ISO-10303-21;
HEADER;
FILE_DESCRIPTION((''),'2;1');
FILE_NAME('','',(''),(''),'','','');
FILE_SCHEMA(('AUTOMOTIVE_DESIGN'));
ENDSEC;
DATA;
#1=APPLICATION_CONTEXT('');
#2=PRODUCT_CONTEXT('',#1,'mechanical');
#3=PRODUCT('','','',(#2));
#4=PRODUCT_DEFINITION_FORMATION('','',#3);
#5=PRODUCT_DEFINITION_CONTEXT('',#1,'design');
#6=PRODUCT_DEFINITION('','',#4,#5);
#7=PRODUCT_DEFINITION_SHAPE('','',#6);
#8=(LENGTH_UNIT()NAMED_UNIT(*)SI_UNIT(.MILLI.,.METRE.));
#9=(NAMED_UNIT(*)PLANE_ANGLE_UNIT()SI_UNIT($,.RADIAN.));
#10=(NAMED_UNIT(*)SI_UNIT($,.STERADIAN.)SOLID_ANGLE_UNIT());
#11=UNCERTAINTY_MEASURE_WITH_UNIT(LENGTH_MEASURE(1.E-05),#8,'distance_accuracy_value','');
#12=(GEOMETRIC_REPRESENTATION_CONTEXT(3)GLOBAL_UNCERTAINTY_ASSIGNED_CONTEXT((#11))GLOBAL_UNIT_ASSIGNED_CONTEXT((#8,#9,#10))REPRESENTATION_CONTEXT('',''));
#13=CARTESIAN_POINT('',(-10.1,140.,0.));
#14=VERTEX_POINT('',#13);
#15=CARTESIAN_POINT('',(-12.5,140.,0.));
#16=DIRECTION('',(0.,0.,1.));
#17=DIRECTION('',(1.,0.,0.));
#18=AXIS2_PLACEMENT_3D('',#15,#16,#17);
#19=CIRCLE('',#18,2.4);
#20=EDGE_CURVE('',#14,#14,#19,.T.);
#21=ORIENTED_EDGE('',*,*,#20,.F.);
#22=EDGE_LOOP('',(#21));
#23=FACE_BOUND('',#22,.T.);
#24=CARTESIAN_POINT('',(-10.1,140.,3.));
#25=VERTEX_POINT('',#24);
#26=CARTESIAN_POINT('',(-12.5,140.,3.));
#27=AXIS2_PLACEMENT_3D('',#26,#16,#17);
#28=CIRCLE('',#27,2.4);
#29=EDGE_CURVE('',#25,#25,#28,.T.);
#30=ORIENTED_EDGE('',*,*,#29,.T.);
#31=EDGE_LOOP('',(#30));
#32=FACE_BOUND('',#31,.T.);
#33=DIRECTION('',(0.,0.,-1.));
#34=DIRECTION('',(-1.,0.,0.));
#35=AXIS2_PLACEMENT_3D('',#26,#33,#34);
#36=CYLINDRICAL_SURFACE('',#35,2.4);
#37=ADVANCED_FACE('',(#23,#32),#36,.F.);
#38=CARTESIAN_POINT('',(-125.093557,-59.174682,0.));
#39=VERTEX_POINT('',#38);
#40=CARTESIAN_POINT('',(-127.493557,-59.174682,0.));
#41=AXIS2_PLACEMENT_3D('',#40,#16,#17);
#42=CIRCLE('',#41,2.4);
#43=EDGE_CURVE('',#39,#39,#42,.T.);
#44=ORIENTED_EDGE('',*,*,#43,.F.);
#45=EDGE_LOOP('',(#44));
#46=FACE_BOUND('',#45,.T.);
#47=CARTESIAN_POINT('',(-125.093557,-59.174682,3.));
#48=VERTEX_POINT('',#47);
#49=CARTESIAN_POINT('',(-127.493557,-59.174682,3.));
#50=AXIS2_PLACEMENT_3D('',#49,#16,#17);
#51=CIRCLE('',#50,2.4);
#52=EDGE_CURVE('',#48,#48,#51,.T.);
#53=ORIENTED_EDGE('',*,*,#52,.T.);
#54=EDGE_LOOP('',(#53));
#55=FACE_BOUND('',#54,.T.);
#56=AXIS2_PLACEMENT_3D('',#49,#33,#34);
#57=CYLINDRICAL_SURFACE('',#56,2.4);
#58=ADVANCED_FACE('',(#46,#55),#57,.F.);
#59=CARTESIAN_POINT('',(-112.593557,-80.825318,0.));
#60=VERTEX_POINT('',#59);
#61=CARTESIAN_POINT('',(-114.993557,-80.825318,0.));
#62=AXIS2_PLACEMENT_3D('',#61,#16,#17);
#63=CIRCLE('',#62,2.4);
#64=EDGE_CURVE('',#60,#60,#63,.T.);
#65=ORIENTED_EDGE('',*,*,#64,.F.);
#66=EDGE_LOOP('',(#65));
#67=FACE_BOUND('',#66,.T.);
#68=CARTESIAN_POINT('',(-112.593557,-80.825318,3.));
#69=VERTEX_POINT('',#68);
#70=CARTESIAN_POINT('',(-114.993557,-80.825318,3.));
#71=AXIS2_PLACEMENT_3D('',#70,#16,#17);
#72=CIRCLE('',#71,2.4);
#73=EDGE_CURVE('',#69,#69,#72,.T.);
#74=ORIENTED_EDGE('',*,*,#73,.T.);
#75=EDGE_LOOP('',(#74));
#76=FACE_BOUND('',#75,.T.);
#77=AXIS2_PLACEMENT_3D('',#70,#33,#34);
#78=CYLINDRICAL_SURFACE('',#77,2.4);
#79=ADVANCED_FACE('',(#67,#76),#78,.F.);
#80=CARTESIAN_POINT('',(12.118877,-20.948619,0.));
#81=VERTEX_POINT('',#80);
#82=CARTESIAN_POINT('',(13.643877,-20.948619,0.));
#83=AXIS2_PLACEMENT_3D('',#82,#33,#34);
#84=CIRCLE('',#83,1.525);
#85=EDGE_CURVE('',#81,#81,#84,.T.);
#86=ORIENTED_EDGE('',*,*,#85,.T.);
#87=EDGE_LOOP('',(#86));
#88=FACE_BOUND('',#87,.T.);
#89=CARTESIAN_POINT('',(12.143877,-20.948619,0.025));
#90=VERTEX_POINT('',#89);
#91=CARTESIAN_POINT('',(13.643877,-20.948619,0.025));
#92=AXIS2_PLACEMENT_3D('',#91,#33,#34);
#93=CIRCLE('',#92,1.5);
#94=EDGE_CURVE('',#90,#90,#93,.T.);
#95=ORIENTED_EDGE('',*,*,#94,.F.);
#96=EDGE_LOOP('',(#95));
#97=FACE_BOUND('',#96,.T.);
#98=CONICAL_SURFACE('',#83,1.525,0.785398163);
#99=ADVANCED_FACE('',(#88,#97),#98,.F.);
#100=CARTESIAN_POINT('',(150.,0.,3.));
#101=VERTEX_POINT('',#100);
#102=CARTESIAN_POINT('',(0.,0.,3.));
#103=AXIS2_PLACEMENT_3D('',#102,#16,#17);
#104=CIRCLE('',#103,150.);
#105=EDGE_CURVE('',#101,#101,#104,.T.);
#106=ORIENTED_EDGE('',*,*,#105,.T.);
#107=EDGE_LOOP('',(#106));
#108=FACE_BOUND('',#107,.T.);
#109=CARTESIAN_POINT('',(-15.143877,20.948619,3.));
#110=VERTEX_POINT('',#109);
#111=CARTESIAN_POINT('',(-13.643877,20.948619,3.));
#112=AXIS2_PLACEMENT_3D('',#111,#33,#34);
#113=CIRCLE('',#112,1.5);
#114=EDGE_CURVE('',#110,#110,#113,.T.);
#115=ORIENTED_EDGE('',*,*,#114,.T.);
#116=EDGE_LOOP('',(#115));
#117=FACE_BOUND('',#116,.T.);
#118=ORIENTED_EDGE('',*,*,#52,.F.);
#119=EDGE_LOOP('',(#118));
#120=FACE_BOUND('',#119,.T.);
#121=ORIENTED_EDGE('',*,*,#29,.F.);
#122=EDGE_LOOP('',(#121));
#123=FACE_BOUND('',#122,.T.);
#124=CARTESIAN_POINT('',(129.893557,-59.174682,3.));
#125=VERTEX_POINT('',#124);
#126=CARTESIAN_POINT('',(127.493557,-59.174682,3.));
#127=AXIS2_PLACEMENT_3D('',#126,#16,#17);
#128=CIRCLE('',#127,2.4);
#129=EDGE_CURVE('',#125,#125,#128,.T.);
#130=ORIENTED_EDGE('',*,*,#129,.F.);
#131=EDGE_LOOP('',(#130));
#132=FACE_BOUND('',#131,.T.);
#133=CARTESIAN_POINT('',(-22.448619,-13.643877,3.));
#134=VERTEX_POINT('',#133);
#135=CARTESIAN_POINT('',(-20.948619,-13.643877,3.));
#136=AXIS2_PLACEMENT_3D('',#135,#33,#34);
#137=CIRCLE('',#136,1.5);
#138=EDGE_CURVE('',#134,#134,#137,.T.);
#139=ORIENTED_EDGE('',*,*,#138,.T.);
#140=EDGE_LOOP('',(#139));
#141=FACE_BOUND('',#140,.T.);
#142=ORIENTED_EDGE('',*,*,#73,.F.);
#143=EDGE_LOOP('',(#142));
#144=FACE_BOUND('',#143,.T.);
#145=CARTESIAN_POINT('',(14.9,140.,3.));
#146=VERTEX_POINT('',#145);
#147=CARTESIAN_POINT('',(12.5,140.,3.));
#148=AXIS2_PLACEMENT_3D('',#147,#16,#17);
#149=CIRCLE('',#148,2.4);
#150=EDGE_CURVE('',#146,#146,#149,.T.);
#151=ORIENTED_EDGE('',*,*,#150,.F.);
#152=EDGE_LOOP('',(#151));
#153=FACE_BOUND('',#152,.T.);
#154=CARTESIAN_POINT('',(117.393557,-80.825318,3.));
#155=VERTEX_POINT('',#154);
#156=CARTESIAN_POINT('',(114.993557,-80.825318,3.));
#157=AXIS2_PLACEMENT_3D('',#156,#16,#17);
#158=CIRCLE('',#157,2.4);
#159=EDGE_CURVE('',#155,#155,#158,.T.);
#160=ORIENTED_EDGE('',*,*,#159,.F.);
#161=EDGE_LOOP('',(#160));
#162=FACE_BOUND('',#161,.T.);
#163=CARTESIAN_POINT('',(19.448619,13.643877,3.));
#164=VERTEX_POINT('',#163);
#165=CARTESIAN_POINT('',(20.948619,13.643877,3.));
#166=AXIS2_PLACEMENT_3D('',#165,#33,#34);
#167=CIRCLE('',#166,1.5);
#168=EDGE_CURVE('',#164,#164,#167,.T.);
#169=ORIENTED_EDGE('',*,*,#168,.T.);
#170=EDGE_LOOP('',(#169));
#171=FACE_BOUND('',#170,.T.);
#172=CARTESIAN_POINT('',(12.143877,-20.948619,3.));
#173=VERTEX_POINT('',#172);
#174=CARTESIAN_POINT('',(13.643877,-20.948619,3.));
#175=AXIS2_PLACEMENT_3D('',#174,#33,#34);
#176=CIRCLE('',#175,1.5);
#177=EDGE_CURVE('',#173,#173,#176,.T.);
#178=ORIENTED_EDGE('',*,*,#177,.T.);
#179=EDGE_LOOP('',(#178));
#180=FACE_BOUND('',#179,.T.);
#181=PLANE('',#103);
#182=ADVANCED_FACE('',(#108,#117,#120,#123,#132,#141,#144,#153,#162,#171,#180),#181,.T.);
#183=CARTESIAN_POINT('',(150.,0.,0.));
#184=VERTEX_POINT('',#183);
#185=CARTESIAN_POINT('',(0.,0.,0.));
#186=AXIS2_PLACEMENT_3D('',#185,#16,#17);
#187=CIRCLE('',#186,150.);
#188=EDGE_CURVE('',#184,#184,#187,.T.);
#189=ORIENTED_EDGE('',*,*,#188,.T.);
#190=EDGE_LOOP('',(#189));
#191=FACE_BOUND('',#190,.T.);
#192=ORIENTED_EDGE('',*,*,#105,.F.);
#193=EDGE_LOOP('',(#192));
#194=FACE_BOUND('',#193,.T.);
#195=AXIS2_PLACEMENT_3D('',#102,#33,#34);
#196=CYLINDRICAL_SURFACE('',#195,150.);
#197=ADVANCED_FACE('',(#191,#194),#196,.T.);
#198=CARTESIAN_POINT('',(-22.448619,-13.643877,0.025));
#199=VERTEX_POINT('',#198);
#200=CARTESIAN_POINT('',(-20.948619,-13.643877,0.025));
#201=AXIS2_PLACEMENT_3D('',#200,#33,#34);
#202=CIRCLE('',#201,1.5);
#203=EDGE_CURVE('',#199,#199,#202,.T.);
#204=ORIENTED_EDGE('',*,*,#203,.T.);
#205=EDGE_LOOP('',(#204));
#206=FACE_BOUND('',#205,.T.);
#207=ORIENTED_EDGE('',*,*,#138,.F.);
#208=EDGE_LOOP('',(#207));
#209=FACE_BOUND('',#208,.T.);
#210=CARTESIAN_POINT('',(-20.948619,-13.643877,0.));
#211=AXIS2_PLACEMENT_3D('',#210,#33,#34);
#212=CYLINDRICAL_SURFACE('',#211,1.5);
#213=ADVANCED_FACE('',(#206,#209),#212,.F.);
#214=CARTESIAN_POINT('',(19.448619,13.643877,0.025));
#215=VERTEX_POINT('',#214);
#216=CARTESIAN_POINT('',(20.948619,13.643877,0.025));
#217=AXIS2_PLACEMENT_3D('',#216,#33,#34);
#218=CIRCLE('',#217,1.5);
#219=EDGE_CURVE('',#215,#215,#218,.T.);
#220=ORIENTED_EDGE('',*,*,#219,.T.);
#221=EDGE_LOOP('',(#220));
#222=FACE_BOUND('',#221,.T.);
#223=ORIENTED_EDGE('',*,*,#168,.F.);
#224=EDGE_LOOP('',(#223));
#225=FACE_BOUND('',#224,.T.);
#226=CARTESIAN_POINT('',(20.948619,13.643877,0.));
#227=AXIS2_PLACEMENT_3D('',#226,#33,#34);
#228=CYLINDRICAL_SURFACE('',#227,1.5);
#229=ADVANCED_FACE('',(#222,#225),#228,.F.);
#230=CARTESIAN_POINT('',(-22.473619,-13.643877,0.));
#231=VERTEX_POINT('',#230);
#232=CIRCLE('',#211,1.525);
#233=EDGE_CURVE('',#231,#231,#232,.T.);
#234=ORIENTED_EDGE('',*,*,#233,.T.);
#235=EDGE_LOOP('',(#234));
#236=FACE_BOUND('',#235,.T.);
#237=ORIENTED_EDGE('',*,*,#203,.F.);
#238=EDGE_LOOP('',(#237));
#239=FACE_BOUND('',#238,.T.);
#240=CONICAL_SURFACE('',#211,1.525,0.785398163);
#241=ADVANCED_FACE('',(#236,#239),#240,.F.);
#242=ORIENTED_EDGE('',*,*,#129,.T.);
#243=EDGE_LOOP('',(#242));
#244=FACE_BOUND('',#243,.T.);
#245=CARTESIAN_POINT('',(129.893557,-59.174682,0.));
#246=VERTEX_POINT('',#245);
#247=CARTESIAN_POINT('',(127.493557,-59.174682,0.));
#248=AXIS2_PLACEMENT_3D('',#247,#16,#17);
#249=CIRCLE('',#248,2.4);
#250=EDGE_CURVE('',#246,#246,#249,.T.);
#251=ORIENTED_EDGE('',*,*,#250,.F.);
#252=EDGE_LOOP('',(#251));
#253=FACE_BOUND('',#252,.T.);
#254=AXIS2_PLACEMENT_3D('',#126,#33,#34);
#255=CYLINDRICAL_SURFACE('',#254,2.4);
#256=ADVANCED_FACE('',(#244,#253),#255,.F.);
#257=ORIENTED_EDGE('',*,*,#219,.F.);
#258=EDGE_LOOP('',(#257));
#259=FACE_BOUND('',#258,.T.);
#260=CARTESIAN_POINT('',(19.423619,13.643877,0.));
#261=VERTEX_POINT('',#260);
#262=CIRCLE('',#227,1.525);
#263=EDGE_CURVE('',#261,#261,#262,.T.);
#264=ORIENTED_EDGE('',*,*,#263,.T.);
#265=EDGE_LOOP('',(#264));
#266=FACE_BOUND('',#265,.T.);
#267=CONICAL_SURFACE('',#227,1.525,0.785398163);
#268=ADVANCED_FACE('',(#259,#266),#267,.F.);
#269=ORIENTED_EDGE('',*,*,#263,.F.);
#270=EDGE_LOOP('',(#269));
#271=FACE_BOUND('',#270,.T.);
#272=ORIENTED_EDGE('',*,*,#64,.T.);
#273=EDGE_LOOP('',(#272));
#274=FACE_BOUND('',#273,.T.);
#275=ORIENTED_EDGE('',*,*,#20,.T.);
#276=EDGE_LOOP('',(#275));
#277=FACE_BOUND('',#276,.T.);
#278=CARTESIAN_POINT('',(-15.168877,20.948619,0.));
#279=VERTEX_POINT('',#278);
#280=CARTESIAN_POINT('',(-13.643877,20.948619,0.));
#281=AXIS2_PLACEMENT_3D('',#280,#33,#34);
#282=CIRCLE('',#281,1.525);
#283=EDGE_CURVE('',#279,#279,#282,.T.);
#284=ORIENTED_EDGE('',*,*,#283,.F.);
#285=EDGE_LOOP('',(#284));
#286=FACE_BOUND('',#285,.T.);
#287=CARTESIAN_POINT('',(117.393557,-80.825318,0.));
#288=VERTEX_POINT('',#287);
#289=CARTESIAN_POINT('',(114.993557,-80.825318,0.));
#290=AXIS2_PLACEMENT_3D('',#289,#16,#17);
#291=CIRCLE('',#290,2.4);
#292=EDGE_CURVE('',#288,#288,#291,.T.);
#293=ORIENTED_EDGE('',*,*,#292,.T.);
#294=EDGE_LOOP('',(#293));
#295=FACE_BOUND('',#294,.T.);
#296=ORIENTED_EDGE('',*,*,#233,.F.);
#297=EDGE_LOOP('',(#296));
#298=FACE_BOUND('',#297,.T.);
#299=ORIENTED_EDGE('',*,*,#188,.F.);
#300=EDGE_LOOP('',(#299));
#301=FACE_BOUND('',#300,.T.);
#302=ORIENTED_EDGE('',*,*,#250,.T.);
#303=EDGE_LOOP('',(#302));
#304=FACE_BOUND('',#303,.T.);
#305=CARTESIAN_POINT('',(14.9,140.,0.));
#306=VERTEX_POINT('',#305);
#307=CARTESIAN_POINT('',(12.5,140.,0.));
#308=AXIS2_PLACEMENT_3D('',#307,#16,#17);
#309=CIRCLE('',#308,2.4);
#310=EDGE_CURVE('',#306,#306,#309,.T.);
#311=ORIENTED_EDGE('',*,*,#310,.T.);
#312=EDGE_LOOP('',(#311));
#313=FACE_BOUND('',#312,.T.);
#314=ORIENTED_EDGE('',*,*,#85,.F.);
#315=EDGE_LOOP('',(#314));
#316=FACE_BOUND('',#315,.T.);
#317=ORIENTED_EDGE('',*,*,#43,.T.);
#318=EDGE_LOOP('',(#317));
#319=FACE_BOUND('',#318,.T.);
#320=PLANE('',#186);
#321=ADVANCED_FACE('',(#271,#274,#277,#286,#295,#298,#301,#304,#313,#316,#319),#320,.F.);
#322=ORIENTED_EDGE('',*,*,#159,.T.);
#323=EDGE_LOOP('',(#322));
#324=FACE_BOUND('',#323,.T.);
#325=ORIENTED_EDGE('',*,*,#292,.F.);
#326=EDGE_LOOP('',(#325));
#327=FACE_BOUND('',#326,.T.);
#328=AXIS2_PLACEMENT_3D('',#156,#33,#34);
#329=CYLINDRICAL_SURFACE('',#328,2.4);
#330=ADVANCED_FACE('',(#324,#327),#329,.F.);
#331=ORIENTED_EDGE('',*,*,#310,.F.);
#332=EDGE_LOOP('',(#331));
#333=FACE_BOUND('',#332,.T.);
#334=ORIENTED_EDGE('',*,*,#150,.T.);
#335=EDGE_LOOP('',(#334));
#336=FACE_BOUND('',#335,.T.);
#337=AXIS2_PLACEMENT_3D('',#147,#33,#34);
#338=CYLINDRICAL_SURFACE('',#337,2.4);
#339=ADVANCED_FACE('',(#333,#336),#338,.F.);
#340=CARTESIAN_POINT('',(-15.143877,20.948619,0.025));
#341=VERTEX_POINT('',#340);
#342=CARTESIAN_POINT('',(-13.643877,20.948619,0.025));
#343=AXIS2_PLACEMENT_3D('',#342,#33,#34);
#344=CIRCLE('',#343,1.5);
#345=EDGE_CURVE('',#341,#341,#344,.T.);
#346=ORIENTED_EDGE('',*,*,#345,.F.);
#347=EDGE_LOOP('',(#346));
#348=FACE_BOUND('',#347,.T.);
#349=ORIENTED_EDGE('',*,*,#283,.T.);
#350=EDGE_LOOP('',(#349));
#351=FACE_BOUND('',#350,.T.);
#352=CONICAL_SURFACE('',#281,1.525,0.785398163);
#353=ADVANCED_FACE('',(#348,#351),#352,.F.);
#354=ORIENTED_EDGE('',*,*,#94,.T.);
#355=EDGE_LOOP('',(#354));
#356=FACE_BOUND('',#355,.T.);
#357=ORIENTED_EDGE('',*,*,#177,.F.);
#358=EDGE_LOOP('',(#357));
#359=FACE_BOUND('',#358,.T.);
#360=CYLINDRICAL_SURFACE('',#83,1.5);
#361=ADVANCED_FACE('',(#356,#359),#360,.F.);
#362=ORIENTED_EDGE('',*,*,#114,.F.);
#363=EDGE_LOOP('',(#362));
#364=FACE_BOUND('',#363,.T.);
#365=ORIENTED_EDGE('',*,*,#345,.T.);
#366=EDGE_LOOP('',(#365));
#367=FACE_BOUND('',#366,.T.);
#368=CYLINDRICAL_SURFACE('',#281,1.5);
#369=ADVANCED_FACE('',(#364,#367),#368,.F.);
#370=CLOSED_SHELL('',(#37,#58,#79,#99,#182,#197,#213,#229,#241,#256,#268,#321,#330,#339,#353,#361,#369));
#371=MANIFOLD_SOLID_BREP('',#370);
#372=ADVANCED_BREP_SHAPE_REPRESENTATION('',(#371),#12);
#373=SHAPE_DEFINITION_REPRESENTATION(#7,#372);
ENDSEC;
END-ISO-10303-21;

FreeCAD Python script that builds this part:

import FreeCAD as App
import Part
import Sketcher
Q = App.Units.Quantity

doc = App.newDocument("Part")
body = doc.addObject("PartDesign::Body", "Body")

sketch1 = doc.addObject("Sketcher::SketchObject", "Sketch")
body.addObject(sketch1)
sketch1.AttachmentSupport = (doc.XY_Plane, [""])
sketch1.MapMode = "FlatFace"
sketch1.addGeometry([
    Part.Circle(App.Vector(0, 0, 0), App.Vector(0, 0, 1), 150),
    Part.Circle(App.Vector(-114.993557, -80.825318, 0), App.Vector(0, 0, 1), 2.4),
    Part.Circle(App.Vector(-127.493557, -59.174682, 0), App.Vector(0, 0, 1), 2.4),
    Part.Circle(App.Vector(114.993557, -80.825318, 0), App.Vector(0, 0, 1), 2.4),
    Part.Circle(App.Vector(127.493557, -59.174682, 0), App.Vector(0, 0, 1), 2.4),
    Part.Circle(App.Vector(-12.5, 140, 0), App.Vector(0, 0, 1), 2.4),
    Part.Circle(App.Vector(12.5, 140, 0), App.Vector(0, 0, 1), 2.4),
], False)
sketch1.addConstraint([
    Sketcher.Constraint("Coincident", 0, 3, -1, 1),
    Sketcher.Constraint("Equal", 1, 2),
    Sketcher.Constraint("Equal", 2, 3),
    Sketcher.Constraint("Equal", 3, 4),
    Sketcher.Constraint("Equal", 4, 5),
    Sketcher.Constraint("Equal", 5, 6),
    Sketcher.Constraint("Symmetric", 1, 3, 3, 3, -2),
    Sketcher.Constraint("Symmetric", 2, 3, 4, 3, -2),
    Sketcher.Constraint("Symmetric", 5, 3, 6, 3, -2),
    Sketcher.Constraint("Diameter", 0, Q("300 mm")),
    Sketcher.Constraint("Diameter", 1, Q("4.8 mm")),
    Sketcher.Constraint("DistanceY", -1, 1, 5, 3, Q("140 mm")),
    Sketcher.Constraint("DistanceX", 5, 3, 6, 3, Q("25 mm")),
    Sketcher.Constraint("DistanceX", 2, 3, 1, 3, Q("12.5 mm")),
    Sketcher.Constraint("DistanceX", 1, 3, -1, 1, Q("114.993557 mm")),
    Sketcher.Constraint("DistanceY", 1, 3, -1, 1, Q("80.825318 mm")),
    Sketcher.Constraint("DistanceY", 2, 3, -1, 1, Q("59.174682 mm")),
])
pad1 = doc.addObject("PartDesign::Pad", "Pad")
body.addObject(pad1)
pad1.Profile = sketch1
pad1.Length = 3

sketch2 = doc.addObject("Sketcher::SketchObject", "Sketch001")
body.addObject(sketch2)
sketch2.AttachmentSupport = (doc.XY_Plane, [""])
sketch2.MapMode = "FlatFace"
sketch2.addGeometry([
    Part.Circle(App.Vector(20.948619, 13.643877, 0), App.Vector(0, 0, 1), 1.5),
    Part.Circle(App.Vector(-13.643877, 20.948619, 0), App.Vector(0, 0, 1), 1.5),
    Part.Circle(App.Vector(-20.948619, -13.643877, 0), App.Vector(0, 0, 1), 1.5),
    Part.Circle(App.Vector(13.643877, -20.948619, 0), App.Vector(0, 0, 1), 1.5),
], False)
sketch2.addConstraint([
    Sketcher.Constraint("Equal", 0, 1),
    Sketcher.Constraint("Equal", 1, 2),
    Sketcher.Constraint("Equal", 2, 3),
    Sketcher.Constraint("Symmetric", 0, 3, 2, 3, -1, 1),
    Sketcher.Constraint("Symmetric", 1, 3, 3, 3, -1, 1),
    Sketcher.Constraint("Diameter", 0, Q("3 mm")),
    Sketcher.Constraint("DistanceX", -1, 1, 0, 3, Q("20.948619 mm")),
    Sketcher.Constraint("DistanceY", -1, 1, 1, 3, Q("20.948619 mm")),
    Sketcher.Constraint("DistanceY", 0, 3, 1, 3, Q("7.304742 mm")),
    Sketcher.Constraint("DistanceX", 2, 3, 1, 3, Q("7.304742 mm")),
])
doc.recompute()
hole = doc.addObject("PartDesign::Hole", "Hole")
body.addObject(hole)
hole.Profile = sketch2
hole.ThreadType = "None"
hole.Diameter = 3
hole.DepthType = "ThroughAll"
hole.HoleCutType = "Countersink"
hole.HoleCutDiameter = 3.05
hole.HoleCutCountersinkAngle = 90
hole.Reversed = True

doc.recompute()
